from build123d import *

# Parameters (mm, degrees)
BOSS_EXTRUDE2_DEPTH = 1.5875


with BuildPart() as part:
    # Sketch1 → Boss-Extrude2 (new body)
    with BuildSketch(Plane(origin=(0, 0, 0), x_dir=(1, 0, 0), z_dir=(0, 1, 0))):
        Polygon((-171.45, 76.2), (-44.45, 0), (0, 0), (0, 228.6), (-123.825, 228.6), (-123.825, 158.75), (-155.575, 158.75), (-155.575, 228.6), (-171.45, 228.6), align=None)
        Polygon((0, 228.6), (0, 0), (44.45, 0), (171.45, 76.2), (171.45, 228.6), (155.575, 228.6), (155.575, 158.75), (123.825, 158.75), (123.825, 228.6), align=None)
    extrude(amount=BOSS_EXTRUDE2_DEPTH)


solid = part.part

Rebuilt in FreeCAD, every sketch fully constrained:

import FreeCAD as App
import Part
import Sketcher
Q = App.Units.Quantity


def add_polygon(sketch, points):
    """Adds a closed chain of lines whose ends are joined by coincident constraints."""
    first, n = sketch.GeometryCount, len(points)
    for a, b in zip(points, points[1:] + points[:1]):
        sketch.addGeometry(Part.LineSegment(App.Vector(*a, 0), App.Vector(*b, 0)), False)
    for i in range(n):
        sketch.addConstraint(Sketcher.Constraint("Coincident", first + i, 2, first + (i + 1) % n, 1))

doc = App.newDocument("Part")
body = doc.addObject("PartDesign::Body", "Body")

sketch1 = body.newObject("Sketcher::SketchObject", "Sketch")
sketch1.AttachmentSupport = (doc.getObject("XZ_Plane"), [""])
sketch1.MapMode = "FlatFace"
add_polygon(sketch1, [(-171.45, -76.2), (-44.45, 0), (44.45, 0), (171.45, -76.2), (171.45, -228.6), (155.575, -228.6), (155.575, -158.75), (123.825, -158.75), (123.825, -228.6), (-123.825, -228.6), (-123.825, -158.75), (-155.575, -158.75), (-155.575, -228.6), (-171.45, -228.6)])
sketch1.addConstraint(Sketcher.Constraint("Horizontal", 1))
sketch1.addConstraint(Sketcher.Constraint("Vertical", 3))
sketch1.addConstraint(Sketcher.Constraint("Horizontal", 4))
sketch1.addConstraint(Sketcher.Constraint("Vertical", 5))
sketch1.addConstraint(Sketcher.Constraint("Horizontal", 6))
sketch1.addConstraint(Sketcher.Constraint("Vertical", 7))
sketch1.addConstraint(Sketcher.Constraint("Horizontal", 8))
sketch1.addConstraint(Sketcher.Constraint("Vertical", 9))
sketch1.addConstraint(Sketcher.Constraint("Horizontal", 10))
sketch1.addConstraint(Sketcher.Constraint("Vertical", 11))
sketch1.addConstraint(Sketcher.Constraint("Horizontal", 12))
sketch1.addConstraint(Sketcher.Constraint("Vertical", 13))
sketch1.addConstraint(Sketcher.Constraint("Symmetric", 0, 2, 1, 2, -1, 1))
sketch1.addConstraint(Sketcher.Constraint("Symmetric", 6, 2, 9, 2, -2))
sketch1.addConstraint(Sketcher.Constraint("Symmetric", 4, 2, 11, 2, -2))
sketch1.addConstraint(Sketcher.Constraint("Symmetric", 2, 2, 13, 2, -2))
sketch1.addConstraint(Sketcher.Constraint("Horizontal", 4, 2, 7, 2))
sketch1.addConstraint(Sketcher.Constraint("DistanceY", 3, 2, 3, 1, Q("6 in")))
sketch1.addConstraint(Sketcher.Constraint("DistanceX", 1, 1, 1, 2, Q("3.5 in")))
sketch1.addConstraint(Sketcher.Constraint("DistanceY", 2, 2, -1, 1, Q("3 in")))
sketch1.addConstraint(Sketcher.Constraint("DistanceX", 1, 2, 2, 2, Q("5 in")))
sketch1.addConstraint(Sketcher.Constraint("DistanceX", 8, 2, 4, 2, Q("11 in")))
sketch1.addConstraint(Sketcher.Constraint("DistanceX", 6, 2, 6, 1, Q("1.25 in")))
sketch1.addConstraint(Sketcher.Constraint("DistanceY", 5, 1, 5, 2, Q("2.75 in")))
pad1 = body.newObject("PartDesign::Pad", "Pad")
pad1.Profile = sketch1
pad1.Length = Q("0.0625 in")
pad1.Reversed = True

doc.recompute()
